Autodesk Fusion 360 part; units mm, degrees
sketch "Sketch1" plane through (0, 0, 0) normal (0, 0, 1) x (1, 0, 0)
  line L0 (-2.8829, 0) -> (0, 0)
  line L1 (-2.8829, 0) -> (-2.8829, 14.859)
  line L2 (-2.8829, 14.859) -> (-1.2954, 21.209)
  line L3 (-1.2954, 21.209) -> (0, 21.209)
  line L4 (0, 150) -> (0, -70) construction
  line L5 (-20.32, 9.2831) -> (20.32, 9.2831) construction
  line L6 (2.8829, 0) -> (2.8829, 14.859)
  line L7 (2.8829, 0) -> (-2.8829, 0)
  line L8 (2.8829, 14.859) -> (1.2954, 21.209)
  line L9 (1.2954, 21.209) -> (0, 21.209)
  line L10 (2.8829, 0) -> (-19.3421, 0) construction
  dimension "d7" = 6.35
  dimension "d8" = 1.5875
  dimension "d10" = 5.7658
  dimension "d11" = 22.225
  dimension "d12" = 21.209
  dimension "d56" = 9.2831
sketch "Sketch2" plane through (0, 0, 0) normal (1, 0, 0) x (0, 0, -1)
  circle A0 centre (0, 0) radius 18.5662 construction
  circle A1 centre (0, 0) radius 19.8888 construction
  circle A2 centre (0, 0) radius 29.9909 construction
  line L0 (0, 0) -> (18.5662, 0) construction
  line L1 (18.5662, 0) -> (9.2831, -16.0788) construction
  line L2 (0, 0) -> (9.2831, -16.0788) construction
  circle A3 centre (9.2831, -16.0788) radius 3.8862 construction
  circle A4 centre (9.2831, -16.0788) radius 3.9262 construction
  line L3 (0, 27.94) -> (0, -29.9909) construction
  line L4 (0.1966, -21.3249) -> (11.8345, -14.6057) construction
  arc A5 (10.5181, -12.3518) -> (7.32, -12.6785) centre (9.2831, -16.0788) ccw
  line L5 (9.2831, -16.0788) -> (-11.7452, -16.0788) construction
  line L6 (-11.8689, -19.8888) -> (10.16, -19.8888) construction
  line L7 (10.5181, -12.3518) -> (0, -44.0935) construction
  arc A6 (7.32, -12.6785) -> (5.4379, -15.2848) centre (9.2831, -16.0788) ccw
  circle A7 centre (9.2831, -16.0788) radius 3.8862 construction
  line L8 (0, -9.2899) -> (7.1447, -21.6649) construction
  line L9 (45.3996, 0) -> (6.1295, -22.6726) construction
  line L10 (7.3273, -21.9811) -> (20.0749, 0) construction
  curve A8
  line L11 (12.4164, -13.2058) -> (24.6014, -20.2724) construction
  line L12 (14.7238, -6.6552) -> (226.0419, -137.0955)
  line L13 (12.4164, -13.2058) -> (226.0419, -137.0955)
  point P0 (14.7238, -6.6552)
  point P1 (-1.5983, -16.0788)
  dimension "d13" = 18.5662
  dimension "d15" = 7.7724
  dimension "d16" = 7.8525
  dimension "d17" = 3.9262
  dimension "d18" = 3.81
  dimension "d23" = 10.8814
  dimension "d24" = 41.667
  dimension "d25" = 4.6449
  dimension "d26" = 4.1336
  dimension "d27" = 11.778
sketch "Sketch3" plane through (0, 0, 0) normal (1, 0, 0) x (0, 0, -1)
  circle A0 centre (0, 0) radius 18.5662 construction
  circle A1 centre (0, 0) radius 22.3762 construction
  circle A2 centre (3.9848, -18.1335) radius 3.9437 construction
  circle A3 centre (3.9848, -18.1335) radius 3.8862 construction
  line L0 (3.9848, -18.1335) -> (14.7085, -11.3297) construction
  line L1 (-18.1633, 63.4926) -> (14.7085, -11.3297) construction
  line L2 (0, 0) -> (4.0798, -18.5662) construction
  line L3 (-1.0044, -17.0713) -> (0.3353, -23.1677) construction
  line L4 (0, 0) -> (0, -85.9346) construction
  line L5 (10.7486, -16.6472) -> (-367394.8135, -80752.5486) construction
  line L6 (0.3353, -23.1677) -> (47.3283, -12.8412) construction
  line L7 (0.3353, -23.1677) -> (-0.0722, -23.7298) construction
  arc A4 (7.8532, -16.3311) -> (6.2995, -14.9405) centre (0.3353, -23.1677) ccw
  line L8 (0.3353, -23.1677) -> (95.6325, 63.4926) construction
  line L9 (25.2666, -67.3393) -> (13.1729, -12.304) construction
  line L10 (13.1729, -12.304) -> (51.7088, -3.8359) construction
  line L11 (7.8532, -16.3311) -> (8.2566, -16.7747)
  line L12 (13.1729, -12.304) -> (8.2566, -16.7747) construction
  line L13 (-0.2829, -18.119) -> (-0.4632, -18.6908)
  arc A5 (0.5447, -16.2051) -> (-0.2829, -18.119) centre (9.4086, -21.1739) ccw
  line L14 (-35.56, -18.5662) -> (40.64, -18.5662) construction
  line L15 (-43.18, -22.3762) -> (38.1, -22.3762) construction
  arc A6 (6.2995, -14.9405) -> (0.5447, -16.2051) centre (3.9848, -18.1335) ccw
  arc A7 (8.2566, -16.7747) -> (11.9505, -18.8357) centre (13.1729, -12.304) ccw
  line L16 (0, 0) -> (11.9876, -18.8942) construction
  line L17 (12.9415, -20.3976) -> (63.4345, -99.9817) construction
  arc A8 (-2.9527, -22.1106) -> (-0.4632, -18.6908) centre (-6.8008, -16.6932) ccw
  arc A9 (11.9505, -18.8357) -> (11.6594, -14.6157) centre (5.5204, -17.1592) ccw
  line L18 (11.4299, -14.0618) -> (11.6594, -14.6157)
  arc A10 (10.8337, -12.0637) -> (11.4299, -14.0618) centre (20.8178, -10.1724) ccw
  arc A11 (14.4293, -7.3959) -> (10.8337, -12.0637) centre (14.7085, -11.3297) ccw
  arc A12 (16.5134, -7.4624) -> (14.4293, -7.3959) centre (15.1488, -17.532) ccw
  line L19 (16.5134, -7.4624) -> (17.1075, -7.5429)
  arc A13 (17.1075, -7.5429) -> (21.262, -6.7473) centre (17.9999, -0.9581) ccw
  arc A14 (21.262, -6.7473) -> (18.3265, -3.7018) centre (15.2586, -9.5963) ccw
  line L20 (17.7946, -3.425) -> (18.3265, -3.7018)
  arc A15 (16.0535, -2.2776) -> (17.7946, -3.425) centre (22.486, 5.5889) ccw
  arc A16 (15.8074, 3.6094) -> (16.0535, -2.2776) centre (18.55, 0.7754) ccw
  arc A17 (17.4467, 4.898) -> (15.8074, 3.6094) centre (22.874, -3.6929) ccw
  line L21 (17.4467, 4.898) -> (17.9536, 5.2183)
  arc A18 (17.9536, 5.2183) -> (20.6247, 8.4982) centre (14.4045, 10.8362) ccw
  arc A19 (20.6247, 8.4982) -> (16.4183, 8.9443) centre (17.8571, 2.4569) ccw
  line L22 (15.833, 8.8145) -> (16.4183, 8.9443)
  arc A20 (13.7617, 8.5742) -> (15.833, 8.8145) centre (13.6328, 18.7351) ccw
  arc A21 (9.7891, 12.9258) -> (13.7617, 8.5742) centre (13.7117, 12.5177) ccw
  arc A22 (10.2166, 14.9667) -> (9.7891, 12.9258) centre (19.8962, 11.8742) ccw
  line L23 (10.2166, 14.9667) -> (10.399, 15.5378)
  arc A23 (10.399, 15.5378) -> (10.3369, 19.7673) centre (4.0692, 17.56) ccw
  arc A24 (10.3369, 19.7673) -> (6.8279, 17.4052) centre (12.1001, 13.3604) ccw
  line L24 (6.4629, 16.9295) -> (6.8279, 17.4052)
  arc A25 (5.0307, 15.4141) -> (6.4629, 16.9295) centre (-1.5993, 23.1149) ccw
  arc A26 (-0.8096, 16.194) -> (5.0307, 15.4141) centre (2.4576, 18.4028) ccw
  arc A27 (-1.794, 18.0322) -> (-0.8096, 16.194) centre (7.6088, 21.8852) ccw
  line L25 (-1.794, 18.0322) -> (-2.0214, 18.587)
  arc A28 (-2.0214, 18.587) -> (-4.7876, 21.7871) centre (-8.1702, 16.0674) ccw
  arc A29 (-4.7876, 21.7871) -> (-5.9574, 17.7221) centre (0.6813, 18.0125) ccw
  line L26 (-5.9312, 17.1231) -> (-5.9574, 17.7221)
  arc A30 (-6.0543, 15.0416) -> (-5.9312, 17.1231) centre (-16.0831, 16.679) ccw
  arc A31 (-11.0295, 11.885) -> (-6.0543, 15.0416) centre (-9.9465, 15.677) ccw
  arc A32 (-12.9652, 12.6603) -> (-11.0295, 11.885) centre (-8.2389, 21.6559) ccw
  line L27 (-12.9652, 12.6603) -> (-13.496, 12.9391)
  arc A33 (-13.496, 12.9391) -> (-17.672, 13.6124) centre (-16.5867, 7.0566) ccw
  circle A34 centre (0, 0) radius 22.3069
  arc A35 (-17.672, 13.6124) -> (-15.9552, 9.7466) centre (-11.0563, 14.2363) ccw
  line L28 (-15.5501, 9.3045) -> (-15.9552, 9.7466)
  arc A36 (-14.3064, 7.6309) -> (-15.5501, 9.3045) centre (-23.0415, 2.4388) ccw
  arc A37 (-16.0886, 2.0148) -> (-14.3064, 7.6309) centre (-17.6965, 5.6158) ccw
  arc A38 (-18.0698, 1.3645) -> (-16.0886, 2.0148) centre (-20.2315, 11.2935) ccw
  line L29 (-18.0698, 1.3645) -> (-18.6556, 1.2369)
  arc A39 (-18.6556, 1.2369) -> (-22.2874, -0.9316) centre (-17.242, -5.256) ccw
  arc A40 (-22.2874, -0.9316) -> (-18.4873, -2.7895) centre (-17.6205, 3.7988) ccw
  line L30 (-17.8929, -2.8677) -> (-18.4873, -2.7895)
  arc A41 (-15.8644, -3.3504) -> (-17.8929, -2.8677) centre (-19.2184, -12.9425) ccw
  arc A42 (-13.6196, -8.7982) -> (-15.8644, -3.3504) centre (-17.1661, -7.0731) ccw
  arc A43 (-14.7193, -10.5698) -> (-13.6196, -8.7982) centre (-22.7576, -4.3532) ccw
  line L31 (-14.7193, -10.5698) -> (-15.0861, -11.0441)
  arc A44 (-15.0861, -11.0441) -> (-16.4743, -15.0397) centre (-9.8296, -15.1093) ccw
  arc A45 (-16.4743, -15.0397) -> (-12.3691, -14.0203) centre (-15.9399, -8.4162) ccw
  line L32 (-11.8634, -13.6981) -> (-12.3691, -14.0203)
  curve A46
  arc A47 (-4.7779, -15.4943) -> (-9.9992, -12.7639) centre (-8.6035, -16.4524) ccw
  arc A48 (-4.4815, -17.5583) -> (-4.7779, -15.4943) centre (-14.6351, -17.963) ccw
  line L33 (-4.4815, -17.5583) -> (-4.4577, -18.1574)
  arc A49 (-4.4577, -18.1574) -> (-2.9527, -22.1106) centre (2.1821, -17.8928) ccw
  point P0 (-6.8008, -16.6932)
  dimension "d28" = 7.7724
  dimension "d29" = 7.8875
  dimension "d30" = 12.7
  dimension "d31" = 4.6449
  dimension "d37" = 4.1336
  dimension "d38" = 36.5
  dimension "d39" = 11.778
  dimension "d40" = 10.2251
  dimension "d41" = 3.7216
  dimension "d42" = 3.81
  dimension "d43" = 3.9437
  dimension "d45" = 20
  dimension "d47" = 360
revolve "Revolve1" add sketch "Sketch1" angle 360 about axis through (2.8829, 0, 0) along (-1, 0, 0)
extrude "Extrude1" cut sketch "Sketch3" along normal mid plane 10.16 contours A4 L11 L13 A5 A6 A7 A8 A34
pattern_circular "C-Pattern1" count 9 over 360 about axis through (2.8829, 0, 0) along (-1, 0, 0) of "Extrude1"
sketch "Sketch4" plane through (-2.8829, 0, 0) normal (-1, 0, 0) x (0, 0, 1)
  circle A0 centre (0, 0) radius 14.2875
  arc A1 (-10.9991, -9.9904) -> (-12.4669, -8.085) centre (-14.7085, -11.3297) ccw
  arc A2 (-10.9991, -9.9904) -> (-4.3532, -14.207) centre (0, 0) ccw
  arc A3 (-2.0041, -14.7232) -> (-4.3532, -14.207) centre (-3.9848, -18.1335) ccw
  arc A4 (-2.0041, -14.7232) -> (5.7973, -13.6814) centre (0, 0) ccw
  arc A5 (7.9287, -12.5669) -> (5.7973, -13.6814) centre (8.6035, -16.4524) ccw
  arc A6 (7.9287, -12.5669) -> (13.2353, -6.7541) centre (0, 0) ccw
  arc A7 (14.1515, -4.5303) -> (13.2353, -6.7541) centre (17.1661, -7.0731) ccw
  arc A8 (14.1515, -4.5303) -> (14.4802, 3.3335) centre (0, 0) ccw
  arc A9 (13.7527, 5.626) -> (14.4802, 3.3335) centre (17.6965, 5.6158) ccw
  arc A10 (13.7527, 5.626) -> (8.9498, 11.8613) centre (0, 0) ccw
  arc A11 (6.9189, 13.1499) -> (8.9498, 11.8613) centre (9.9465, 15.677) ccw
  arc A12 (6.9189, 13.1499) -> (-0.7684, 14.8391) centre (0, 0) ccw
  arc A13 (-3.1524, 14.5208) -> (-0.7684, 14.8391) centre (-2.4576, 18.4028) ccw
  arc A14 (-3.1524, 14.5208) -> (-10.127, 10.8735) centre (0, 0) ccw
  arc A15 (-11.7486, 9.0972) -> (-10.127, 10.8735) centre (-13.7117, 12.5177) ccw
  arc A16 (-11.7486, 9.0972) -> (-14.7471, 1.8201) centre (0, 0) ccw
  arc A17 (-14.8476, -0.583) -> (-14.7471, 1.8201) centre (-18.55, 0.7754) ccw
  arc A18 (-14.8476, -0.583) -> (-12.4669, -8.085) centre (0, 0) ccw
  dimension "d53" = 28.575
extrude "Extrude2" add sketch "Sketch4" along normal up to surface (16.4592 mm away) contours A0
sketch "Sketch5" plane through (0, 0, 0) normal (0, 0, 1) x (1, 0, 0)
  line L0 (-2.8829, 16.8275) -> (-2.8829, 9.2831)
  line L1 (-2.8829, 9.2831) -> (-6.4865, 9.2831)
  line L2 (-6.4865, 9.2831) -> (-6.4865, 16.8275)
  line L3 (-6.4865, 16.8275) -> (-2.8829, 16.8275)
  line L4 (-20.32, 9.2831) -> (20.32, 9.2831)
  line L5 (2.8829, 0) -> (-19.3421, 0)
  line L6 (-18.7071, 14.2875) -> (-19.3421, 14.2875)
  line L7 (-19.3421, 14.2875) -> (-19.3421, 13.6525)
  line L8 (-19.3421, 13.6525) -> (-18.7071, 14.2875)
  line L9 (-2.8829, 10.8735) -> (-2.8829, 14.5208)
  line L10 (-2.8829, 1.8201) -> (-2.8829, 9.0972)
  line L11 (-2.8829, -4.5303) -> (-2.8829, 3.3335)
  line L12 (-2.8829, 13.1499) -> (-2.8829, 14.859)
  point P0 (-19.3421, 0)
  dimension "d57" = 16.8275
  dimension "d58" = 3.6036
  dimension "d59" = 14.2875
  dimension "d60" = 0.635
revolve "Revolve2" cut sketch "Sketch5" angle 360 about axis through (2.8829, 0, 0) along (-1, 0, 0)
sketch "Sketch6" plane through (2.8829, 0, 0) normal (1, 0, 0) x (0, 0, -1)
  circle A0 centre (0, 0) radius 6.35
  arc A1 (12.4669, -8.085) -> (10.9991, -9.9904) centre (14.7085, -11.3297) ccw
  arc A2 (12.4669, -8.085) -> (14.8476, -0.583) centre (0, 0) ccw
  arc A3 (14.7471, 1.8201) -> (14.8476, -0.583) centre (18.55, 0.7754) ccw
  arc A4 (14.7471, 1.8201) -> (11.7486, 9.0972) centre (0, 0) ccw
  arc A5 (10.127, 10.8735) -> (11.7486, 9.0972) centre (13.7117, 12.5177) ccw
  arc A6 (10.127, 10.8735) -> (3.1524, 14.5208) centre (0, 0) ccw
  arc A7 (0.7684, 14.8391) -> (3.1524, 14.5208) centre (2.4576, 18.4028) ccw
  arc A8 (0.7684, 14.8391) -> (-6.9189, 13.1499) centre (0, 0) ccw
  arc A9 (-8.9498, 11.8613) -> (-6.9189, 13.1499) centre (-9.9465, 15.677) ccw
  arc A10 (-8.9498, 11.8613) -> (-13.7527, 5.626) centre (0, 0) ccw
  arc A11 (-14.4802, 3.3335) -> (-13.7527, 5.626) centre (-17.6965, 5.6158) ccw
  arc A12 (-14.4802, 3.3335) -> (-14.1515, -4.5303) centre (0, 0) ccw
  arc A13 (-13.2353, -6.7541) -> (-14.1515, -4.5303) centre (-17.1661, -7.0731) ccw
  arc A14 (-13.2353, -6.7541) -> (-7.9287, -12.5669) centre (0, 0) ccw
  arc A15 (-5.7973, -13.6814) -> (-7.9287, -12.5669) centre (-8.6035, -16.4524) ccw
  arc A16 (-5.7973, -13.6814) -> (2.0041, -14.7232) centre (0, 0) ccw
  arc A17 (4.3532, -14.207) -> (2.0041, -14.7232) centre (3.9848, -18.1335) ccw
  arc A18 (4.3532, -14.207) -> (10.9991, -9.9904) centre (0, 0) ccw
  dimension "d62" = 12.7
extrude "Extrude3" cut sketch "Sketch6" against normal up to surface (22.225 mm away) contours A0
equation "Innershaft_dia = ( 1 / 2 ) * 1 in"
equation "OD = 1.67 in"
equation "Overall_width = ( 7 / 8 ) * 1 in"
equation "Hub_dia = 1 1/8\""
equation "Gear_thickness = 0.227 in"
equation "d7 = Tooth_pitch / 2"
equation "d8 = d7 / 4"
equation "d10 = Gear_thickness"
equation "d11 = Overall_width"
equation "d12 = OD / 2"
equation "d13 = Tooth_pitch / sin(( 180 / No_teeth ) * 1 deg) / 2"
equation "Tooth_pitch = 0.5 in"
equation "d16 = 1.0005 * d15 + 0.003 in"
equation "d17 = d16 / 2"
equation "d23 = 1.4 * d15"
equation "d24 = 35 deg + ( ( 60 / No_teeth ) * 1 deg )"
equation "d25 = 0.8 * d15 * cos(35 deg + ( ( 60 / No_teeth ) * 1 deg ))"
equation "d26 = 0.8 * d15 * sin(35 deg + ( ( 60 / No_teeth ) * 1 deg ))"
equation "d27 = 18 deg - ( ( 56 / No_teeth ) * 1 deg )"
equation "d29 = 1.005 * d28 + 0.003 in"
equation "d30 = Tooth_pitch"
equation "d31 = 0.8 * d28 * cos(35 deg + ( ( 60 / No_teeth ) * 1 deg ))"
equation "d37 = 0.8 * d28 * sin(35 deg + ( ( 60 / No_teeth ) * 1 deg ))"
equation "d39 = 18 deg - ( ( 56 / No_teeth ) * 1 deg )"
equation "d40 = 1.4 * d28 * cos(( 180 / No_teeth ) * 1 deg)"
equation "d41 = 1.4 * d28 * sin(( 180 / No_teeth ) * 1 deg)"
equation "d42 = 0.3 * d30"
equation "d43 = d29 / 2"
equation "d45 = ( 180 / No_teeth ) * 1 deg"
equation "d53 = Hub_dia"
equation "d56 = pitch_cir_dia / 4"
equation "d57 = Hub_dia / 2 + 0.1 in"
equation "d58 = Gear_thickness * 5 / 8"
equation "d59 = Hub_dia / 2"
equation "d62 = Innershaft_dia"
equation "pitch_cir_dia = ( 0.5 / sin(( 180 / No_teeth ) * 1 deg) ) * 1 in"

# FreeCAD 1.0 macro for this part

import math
import FreeCAD as App
import Part
import Sketcher
Q = App.Units.Quantity

doc = App.newDocument("Part")
body = doc.addObject("PartDesign::Body", "Body")

# Sketch on XY plane
sketch1 = doc.addObject("Sketcher::SketchObject", "Sketch")
body.addObject(sketch1)
sketch1.AttachmentSupport = (doc.XY_Plane, [""])
sketch1.MapMode = "FlatFace"
sketch1.addGeometry([
    Part.LineSegment(App.Vector(-2.9, 14.9, 0), App.Vector(-2.9, 0, 0)),  # 0
    Part.LineSegment(App.Vector(-2.9, 0, 0), App.Vector(2.9, 0, 0)),  # 1
    Part.LineSegment(App.Vector(2.9, 0, 0), App.Vector(2.9, 14.9, 0)),  # 2
    Part.LineSegment(App.Vector(2.9, 14.9, 0), App.Vector(1.3, 21.2, 0)),  # 3
    Part.LineSegment(App.Vector(1.3, 21.2, 0), App.Vector(-1.3, 21.2, 0)),  # 4
    Part.LineSegment(App.Vector(-1.3, 21.2, 0), App.Vector(-2.9, 14.9, 0)),  # 5
], False)
sketch1.addConstraint([
    Sketcher.Constraint("Coincident", 0, 2, 1, 1),
    Sketcher.Constraint("Coincident", 1, 2, 2, 1),
    Sketcher.Constraint("Coincident", 2, 2, 3, 1),
    Sketcher.Constraint("Coincident", 3, 2, 4, 1),
    Sketcher.Constraint("Coincident", 4, 2, 5, 1),
    Sketcher.Constraint("Coincident", 5, 2, 0, 1),
    Sketcher.Constraint("Vertical", 0),
    Sketcher.Constraint("Horizontal", 1),
    Sketcher.Constraint("Vertical", 2),
    Sketcher.Constraint("Horizontal", 4),
    Sketcher.Constraint("Symmetric", 0, 2, 1, 2, -1, 1),
    Sketcher.Constraint("Horizontal", 2, 2, 5, 2),
    Sketcher.Constraint("Equal", 3, 5),
    Sketcher.Constraint("DistanceX", 1, 1, 1, 2, Q("0.227 in")),
    Sketcher.Constraint("DistanceY", 2, 2, 3, 2, Q("0.25 in")),
    Sketcher.Constraint("DistanceY", -1, 1, 3, 2, Q("0.835 in")),
    Sketcher.Constraint("DistanceX", 3, 2, 2, 2, Q("0.0625 in")),
])
revolution = doc.addObject("PartDesign::Revolution", "Revolution")
body.addObject(revolution)
revolution.Profile = sketch1
revolution.ReferenceAxis = (sketch1, ["H_Axis"])
revolution.Angle = 360

# Sketch on YZ plane
sketch2 = doc.addObject("Sketcher::SketchObject", "Sketch001")
body.addObject(sketch2)
sketch2.AttachmentSupport = (doc.YZ_Plane, [""])
sketch2.MapMode = "FlatFace"
sketch2.addGeometry([
    Part.LineSegment(App.Vector(-16.7747, -8.2566, 0), App.Vector(-16.3311, -7.8532, 0)),  # 0
    Part.ArcOfCircle(Part.Circle(App.Vector(-23.169628, -0.333388, 0), App.Vector(0, 0, 1), 10.164302), math.radians(-47.716574), math.radians(-35.942089)),  # 1
    Part.ArcOfCircle(Part.Circle(App.Vector(-18.1335, -3.9848, 0), App.Vector(0, 0, 1), 3.94374), math.radians(-35.939465), math.radians(60.726531)),  # 2
    Part.ArcOfCircle(Part.Circle(App.Vector(-21.1739, -9.4086, 0), App.Vector(0, 0, 1), 10.161579), math.radians(60.726497), math.radians(72.5044)),  # 3
    Part.LineSegment(App.Vector(-18.119, 0.2829, 0), App.Vector(-18.6908, 0.4632, 0)),  # 4
    Part.ArcOfCircle(Part.Circle(App.Vector(-16.6932, 6.8008, 0), App.Vector(0, 0, 1), 6.645005), math.radians(-144.612973), math.radians(-107.494757)),  # 5
    Part.ArcOfCircle(Part.Circle(App.Vector(0, 0, 0), App.Vector(0, 0, 1), 22.3069), math.radians(172.393594), math.radians(212.393497)),  # 6
    Part.ArcOfCircle(Part.Circle(App.Vector(-12.304, -13.1729, 0), App.Vector(0, 0, 1), 6.645086), math.radians(132.282215), math.radians(169.399783)),  # 7
], False)
sketch2.addConstraint([
    Sketcher.Constraint("Coincident", 0, 2, 1, 1),
    Sketcher.Constraint("Coincident", 1, 2, 2, 1),
    Sketcher.Constraint("Coincident", 2, 2, 3, 1),
    Sketcher.Constraint("Coincident", 3, 2, 4, 1),
    Sketcher.Constraint("Coincident", 4, 2, 5, 2),
    Sketcher.Constraint("Coincident", 5, 1, 6, 1),
    Sketcher.Constraint("Coincident", 6, 2, 7, 2),
    Sketcher.Constraint("Coincident", 7, 1, 0, 1),
    Sketcher.Constraint("Coincident", 6, 3, -1, 1),
    Sketcher.Constraint("Radius", 2, 3.9437),
    Sketcher.Constraint("Radius", 1, 10.1643),
    Sketcher.Constraint("Radius", 3, 10.1616),
    Sketcher.Constraint("Radius", 5, 6.645),
    Sketcher.Constraint("Radius", 6, 22.307),
    Sketcher.Constraint("Radius", 7, 6.645),
    Sketcher.Constraint("DistanceY", 1, 2, -1, 1, Q("0.248 in")),
    Sketcher.Constraint("DistanceX", 2, 2, -1, 1, Q("0.638 in")),
    Sketcher.Constraint("DistanceY", 4, 2, 5, 1, Q("0.098 in")),
    Sketcher.Constraint("Distance", 0, Q("0.0236 in")),
    Sketcher.Constraint("Distance", 4, Q("0.0236 in")),
    Sketcher.Constraint("DistanceX", 1, 3, -1, 1, Q("0.9122 in")),
    Sketcher.Constraint("DistanceX", 7, 3, -1, 1, Q("0.4844 in")),
    Sketcher.Constraint("DistanceX", 1, 2, -1, 1, Q("0.5882 in")),
    Sketcher.Constraint("DistanceX", 5, 1, -1, 1, Q("0.8705 in")),
    Sketcher.Constraint("DistanceY", 6, 2, -1, 1, Q("0.4705 in")),
    Sketcher.Constraint("DistanceX", 3, 3, 2, 3, Q("0.1197 in")),
    Sketcher.Constraint("DistanceY", 3, 3, 1, 3, Q("0.3573 in")),
    Sketcher.Constraint("DistanceX", 2, 3, 5, 3, Q("0.0567 in")),
    Sketcher.Constraint("DistanceY", 0, 2, 2, 3, Q("0.1523 in")),
])
pocket1 = doc.addObject("PartDesign::Pocket", "Pocket")
body.addObject(pocket1)
pocket1.Profile = sketch2
pocket1.Length = Q("0.4 in")
pocket1.Midplane = True
doc.recompute()

polarpattern = doc.addObject("PartDesign::PolarPattern", "PolarPattern")
body.addObject(polarpattern)
polarpattern.Originals = [pocket1]
polarpattern.Axis = (doc.X_Axis, [""])
polarpattern.Angle = 360
polarpattern.Occurrences = 9
body.Tip = polarpattern

# Sketch on YZ plane
sketch3 = doc.addObject("Sketcher::SketchObject", "Sketch002")
body.addObject(sketch3)
sketch3.AttachmentSupport = (doc.YZ_Plane, [""])
sketch3.MapMode = "FlatFace"
sketch3.AttachmentOffset = App.Placement(App.Vector(0, 0, -0.1135 * 25.4), App.Rotation())
sketch3.addGeometry(Part.Circle(App.Vector(0, 0, 0), App.Vector(0, 0, 1), 14), False)
sketch3.addConstraint([
    Sketcher.Constraint("Coincident", 0, 3, -1, 1),
    Sketcher.Constraint("Diameter", 0, Q("1.125 in")),
])
pad1 = doc.addObject("PartDesign::Pad", "Pad")
body.addObject(pad1)
pad1.Profile = sketch3
pad1.Length = Q("0.648 in")
pad1.Reversed = True

# Sketch on XY plane
sketch4 = doc.addObject("Sketcher::SketchObject", "Sketch003")
body.addObject(sketch4)
sketch4.AttachmentSupport = (doc.XY_Plane, [""])
sketch4.MapMode = "FlatFace"
sketch4.addGeometry([
    Part.LineSegment(App.Vector(-2.9, 9.3, 0), App.Vector(-2.9, 16.8, 0)),  # 0
    Part.LineSegment(App.Vector(-2.9, 16.8, 0), App.Vector(-6.5, 16.8, 0)),  # 1
    Part.LineSegment(App.Vector(-6.5, 16.8, 0), App.Vector(-6.5, 9.3, 0)),  # 2
    Part.LineSegment(App.Vector(-6.5, 9.3, 0), App.Vector(-2.9, 9.3, 0)),  # 3
    Part.LineSegment(App.Vector(-19.3, 13.7, 0), App.Vector(-18.7, 14.3, 0)),  # 4
    Part.LineSegment(App.Vector(-18.7, 14.3, 0), App.Vector(-19.3, 14.3, 0)),  # 5
    Part.LineSegment(App.Vector(-19.3, 14.3, 0), App.Vector(-19.3, 13.7, 0)),  # 6
], False)
sketch4.addConstraint([
    Sketcher.Constraint("Coincident", 0, 2, 1, 1),
    Sketcher.Constraint("Coincident", 1, 2, 2, 1),
    Sketcher.Constraint("Coincident", 2, 2, 3, 1),
    Sketcher.Constraint("Coincident", 3, 2, 0, 1),
    Sketcher.Constraint("Coincident", 4, 2, 5, 1),
    Sketcher.Constraint("Coincident", 5, 2, 6, 1),
    Sketcher.Constraint("Coincident", 6, 2, 4, 1),
    Sketcher.Constraint("Vertical", 0),
    Sketcher.Constraint("Horizontal", 1),
    Sketcher.Constraint("Vertical", 2),
    Sketcher.Constraint("Horizontal", 3),
    Sketcher.Constraint("Horizontal", 5),
    Sketcher.Constraint("Vertical", 6),
    Sketcher.Constraint("Equal", 5, 6),
    Sketcher.Constraint("DistanceX", 5, 2, 5, 1, Q("0.025 in")),
    Sketcher.Constraint("DistanceY", -1, 1, 4, 2, Q("0.5625 in")),
    Sketcher.Constraint("DistanceX", 1, 2, 1, 1, 3.6036),
    Sketcher.Constraint("DistanceY", -1, 1, 0, 2, Q("0.6625 in")),
    Sketcher.Constraint("DistanceX", 4, 2, 0, 2, Q("0.623 in")),
    Sketcher.Constraint("DistanceY", 0, 1, 0, 2, 7.5444),
    Sketcher.Constraint("DistanceX", 0, 2, -1, 1, Q("0.1135 in")),
])
groove = doc.addObject("PartDesign::Groove", "Groove")
body.addObject(groove)
groove.Profile = sketch4
groove.ReferenceAxis = (sketch4, ["H_Axis"])
groove.Angle = 360

# Sketch on YZ plane
sketch5 = doc.addObject("Sketcher::SketchObject", "Sketch004")
body.addObject(sketch5)
sketch5.AttachmentSupport = (doc.YZ_Plane, [""])
sketch5.MapMode = "FlatFace"
sketch5.AttachmentOffset = App.Placement(App.Vector(0, 0, 0.1135 * 25.4), App.Rotation())
sketch5.addGeometry(Part.Circle(App.Vector(0, 0, 0), App.Vector(0, 0, 1), 6), False)
sketch5.addConstraint([
    Sketcher.Constraint("Coincident", 0, 3, -1, 1),
    Sketcher.Constraint("Diameter", 0, Q("0.5 in")),
])
pocket2 = doc.addObject("PartDesign::Pocket", "Pocket001")
body.addObject(pocket2)
pocket2.Profile = sketch5
pocket2.Length = Q("0.875 in")

doc.recompute()
